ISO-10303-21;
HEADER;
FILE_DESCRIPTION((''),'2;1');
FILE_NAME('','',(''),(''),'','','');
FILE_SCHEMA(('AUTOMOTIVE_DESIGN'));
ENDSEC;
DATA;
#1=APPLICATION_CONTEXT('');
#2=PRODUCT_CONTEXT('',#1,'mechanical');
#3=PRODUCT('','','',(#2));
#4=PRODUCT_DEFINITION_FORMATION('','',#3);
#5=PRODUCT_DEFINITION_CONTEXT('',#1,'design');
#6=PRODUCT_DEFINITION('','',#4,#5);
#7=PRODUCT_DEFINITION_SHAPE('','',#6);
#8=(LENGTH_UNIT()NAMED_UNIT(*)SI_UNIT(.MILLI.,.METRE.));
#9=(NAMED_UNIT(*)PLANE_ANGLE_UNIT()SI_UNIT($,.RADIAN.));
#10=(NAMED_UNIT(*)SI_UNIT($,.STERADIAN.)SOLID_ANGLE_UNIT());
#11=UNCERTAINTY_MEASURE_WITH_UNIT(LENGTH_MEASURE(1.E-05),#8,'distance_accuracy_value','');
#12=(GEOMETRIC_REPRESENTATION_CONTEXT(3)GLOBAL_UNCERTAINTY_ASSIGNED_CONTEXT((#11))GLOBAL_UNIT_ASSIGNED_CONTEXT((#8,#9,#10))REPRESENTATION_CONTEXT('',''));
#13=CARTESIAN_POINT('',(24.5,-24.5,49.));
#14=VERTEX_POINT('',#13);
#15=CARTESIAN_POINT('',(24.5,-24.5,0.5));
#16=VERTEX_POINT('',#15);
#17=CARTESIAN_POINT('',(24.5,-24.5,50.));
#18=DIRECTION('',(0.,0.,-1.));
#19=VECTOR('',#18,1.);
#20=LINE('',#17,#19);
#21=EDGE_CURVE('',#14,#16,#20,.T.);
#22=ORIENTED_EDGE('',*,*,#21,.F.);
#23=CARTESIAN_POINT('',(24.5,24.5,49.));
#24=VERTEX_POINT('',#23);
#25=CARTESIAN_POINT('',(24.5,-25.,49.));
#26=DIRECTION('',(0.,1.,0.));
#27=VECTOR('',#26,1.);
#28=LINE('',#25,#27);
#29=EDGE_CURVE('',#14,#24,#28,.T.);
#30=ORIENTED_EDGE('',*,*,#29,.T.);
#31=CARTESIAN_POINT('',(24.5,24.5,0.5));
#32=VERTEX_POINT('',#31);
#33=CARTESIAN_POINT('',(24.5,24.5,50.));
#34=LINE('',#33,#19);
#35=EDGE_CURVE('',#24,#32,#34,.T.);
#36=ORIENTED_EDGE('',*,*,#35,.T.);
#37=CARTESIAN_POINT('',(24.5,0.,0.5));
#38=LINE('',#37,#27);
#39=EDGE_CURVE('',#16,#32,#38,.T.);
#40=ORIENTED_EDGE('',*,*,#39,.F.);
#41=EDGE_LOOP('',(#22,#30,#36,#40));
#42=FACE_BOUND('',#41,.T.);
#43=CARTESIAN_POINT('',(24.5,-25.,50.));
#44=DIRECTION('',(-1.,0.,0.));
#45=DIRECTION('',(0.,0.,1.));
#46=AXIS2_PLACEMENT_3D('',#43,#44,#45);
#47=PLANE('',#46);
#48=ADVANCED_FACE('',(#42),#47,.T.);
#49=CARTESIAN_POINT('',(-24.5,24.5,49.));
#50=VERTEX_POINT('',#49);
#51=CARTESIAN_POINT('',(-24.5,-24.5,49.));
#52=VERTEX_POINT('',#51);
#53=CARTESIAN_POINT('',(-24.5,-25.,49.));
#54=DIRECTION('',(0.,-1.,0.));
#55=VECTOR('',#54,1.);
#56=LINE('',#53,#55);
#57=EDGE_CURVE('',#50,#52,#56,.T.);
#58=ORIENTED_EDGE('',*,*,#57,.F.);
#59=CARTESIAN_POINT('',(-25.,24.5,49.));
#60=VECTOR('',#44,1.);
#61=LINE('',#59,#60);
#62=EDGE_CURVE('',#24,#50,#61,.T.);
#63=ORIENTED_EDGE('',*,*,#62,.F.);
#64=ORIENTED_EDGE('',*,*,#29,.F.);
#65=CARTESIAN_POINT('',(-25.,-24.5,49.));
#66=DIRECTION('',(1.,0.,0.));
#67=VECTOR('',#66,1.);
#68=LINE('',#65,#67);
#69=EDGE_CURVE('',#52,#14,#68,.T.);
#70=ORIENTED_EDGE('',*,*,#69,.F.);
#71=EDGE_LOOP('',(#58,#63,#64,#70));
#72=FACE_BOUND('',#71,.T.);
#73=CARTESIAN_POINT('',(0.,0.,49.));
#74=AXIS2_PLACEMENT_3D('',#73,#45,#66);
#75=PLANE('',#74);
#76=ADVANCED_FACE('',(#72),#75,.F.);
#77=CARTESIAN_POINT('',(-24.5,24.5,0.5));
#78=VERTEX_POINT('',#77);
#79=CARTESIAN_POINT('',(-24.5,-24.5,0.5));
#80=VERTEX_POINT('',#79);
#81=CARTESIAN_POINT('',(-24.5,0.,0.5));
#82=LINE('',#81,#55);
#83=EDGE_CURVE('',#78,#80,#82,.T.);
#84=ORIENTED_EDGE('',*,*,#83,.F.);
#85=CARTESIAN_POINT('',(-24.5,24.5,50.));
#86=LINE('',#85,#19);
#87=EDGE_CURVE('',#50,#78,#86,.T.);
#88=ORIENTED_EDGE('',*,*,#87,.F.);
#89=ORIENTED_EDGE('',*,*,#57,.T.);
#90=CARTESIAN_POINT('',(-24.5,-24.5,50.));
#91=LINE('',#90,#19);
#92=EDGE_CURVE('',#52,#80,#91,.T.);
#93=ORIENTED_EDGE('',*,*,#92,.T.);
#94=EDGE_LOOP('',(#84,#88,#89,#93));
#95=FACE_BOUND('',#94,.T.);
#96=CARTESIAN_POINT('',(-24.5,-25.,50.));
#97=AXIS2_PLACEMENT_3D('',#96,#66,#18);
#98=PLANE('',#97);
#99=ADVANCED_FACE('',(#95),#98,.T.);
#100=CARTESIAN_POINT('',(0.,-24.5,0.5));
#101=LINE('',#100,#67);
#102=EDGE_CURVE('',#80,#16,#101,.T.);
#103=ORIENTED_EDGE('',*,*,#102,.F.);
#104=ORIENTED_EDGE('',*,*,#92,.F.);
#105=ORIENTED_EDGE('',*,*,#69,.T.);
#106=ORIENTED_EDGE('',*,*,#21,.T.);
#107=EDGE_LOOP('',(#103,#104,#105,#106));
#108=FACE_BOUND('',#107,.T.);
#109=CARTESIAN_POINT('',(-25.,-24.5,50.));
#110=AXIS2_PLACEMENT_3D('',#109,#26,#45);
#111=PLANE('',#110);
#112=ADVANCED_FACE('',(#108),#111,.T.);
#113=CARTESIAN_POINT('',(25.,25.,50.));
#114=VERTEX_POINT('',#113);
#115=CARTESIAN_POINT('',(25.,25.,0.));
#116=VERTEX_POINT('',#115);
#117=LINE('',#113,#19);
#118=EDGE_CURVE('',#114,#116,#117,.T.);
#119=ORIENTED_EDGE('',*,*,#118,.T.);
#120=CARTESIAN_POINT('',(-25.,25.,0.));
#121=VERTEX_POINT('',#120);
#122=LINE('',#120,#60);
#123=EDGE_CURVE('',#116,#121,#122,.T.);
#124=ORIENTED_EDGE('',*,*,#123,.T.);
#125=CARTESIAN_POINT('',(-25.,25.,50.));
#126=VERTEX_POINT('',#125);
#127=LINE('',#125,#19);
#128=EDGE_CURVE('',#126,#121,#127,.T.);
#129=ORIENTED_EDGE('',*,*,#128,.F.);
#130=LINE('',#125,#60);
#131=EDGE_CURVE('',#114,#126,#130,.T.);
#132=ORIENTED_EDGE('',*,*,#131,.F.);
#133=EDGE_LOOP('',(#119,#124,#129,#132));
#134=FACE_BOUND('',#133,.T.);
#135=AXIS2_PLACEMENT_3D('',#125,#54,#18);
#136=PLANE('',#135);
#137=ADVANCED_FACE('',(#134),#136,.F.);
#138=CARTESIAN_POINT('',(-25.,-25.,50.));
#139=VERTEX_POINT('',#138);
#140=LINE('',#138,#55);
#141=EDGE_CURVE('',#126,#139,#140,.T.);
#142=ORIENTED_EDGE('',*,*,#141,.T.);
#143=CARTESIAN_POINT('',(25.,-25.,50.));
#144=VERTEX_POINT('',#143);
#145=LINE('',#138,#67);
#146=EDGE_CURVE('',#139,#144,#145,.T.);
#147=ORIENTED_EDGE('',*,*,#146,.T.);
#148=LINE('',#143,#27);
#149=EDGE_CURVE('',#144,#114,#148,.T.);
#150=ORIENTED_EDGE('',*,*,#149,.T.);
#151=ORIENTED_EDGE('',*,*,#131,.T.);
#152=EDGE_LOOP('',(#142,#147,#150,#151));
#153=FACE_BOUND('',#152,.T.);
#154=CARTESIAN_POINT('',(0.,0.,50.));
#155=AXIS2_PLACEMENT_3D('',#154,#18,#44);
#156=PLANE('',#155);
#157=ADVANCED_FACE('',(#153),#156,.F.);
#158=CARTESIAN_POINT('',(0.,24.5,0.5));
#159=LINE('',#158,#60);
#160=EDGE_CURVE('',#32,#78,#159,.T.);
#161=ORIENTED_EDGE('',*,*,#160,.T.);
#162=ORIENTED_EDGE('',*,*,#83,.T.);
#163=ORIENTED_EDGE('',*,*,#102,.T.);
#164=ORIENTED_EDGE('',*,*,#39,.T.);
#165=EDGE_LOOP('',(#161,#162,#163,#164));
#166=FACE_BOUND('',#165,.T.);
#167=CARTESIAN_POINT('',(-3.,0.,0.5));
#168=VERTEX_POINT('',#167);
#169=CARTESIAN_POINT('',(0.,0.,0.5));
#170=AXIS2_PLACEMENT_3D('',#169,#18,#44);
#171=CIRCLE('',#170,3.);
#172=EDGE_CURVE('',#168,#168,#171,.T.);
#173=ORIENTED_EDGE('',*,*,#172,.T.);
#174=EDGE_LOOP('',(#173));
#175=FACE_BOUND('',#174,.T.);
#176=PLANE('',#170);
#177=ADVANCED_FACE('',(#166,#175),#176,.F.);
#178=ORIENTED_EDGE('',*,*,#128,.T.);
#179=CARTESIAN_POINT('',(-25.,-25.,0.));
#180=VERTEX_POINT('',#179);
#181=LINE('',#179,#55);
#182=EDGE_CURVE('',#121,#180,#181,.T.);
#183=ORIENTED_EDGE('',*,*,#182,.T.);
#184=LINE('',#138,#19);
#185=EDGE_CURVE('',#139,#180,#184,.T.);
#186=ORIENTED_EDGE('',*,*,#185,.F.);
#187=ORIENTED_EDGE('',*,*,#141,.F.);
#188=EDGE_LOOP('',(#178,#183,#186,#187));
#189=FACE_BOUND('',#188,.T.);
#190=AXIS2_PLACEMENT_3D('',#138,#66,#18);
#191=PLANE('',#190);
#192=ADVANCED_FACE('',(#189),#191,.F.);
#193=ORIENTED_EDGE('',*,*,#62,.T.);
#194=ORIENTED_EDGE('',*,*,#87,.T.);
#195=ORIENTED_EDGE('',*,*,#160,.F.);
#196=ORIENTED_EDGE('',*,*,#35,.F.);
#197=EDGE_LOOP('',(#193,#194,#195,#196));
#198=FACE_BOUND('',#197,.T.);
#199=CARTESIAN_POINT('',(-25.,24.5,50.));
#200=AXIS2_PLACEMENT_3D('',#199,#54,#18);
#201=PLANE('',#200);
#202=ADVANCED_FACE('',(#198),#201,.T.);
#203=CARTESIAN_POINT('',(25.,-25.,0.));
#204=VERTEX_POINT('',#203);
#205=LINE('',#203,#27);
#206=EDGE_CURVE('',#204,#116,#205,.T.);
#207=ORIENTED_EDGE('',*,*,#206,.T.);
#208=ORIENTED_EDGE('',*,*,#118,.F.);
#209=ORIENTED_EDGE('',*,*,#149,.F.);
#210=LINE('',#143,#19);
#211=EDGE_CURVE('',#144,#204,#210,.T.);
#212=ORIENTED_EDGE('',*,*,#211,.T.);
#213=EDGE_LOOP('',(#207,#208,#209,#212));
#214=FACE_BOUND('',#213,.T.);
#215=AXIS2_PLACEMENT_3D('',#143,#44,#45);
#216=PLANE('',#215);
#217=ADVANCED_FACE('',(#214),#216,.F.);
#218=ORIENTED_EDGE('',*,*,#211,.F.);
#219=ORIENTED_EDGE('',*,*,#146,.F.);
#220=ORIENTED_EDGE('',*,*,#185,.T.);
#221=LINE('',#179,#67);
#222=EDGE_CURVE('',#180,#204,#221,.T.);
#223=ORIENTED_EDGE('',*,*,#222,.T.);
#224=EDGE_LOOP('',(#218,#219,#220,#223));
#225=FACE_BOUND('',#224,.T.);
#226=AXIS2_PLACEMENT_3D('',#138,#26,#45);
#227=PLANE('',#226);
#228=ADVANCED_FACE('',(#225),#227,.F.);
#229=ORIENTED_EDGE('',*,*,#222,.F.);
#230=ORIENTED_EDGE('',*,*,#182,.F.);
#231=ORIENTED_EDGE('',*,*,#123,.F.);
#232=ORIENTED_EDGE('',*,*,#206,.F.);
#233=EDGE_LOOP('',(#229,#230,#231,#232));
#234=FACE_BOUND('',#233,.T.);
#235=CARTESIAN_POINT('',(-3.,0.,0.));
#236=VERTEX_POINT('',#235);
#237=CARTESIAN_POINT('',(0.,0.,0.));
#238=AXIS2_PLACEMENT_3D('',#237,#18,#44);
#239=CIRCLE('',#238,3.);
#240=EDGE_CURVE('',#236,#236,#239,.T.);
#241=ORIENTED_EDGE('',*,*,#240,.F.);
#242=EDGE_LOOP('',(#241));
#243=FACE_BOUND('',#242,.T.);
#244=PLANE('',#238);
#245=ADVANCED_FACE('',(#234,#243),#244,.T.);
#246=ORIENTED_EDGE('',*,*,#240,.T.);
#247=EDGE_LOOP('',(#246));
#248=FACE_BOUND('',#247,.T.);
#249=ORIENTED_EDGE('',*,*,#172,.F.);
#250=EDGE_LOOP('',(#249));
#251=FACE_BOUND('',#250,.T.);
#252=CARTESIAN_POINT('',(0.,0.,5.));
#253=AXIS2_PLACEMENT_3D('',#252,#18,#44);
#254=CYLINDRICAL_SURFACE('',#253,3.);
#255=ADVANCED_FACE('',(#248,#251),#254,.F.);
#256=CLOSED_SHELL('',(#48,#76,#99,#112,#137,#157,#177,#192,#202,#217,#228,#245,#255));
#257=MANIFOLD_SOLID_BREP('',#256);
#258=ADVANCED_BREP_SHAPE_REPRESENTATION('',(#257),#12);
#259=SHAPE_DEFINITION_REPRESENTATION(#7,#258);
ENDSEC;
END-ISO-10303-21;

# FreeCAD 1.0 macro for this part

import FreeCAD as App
import Part
import Sketcher
Q = App.Units.Quantity


def faces_at(feature, points):
    """Names of the faces that lie closest to the given points."""
    faces = feature.Shape.Faces
    near = lambda p: min(range(len(faces)), key=lambda i: faces[i].distToShape(Part.Vertex(*p))[0])
    return sorted({f"Face{near(p) + 1}" for p in points})

doc = App.newDocument("Part")
params = doc.addObject("Spreadsheet::Sheet", "Params")
for row, (alias, value) in enumerate([
    ("sketch1_width", "50 mm"),
    ("pad1_length", "50 mm"),
    ("thickness_wall", "0.5 mm"),
    ("sketch2_diameter", "6 mm"),
    ("pocket1_length", "5 mm"),
    ("sketch3_width", "50 mm"),
    ("pad2_length", "1 mm"),
], start=1):
    params.set(f"A{row}", alias)
    params.set(f"B{row}", "=" + value)
    params.setAlias(f"B{row}", alias)

body = doc.addObject("PartDesign::Body", "Body")

sketch1 = doc.addObject("Sketcher::SketchObject", "Sketch")
body.addObject(sketch1)
sketch1.AttachmentSupport = (doc.XY_Plane, [""])
sketch1.MapMode = "FlatFace"
sketch1.addGeometry([
    Part.LineSegment(App.Vector(-25, 25, 0), App.Vector(-25, -25, 0)),
    Part.LineSegment(App.Vector(-25, -25, 0), App.Vector(25, -25, 0)),
    Part.LineSegment(App.Vector(25, -25, 0), App.Vector(25, 25, 0)),
    Part.LineSegment(App.Vector(25, 25, 0), App.Vector(-25, 25, 0)),
], False)
sketch1.addConstraint([
    Sketcher.Constraint("Coincident", 0, 2, 1, 1),
    Sketcher.Constraint("Coincident", 1, 2, 2, 1),
    Sketcher.Constraint("Coincident", 2, 2, 3, 1),
    Sketcher.Constraint("Coincident", 3, 2, 0, 1),
    Sketcher.Constraint("Vertical", 0),
    Sketcher.Constraint("Horizontal", 1),
    Sketcher.Constraint("Vertical", 2),
    Sketcher.Constraint("Horizontal", 3),
    Sketcher.Constraint("Symmetric", 0, 2, 2, 2, -1, 1),
    Sketcher.Constraint("Equal", 3, 0),
    Sketcher.Constraint("DistanceX", 1, 1, 1, 2, Q("50 mm")),
])
sketch1.setExpression("Constraints[10]", "Params.sketch1_width")
pad1 = doc.addObject("PartDesign::Pad", "Pad")
body.addObject(pad1)
pad1.Profile = sketch1
pad1.setExpression("Length", "Params.pad1_length")
doc.recompute()

thickness = doc.addObject("PartDesign::Thickness", "Thickness")
body.addObject(thickness)
thickness.Base = (pad1, faces_at(pad1, [(0, 0, 50)]))
thickness.setExpression("Value", "Params.thickness_wall")
thickness.Reversed = True
thickness.Join = "Intersection"

sketch2 = doc.addObject("Sketcher::SketchObject", "Sketch001")
body.addObject(sketch2)
sketch2.AttachmentSupport = (doc.XY_Plane, [""])
sketch2.MapMode = "FlatFace"
sketch2.addGeometry(Part.Circle(App.Vector(0, 0, 0), App.Vector(0, 0, 1), 3), False)
sketch2.addConstraint([
    Sketcher.Constraint("Coincident", 0, 3, -1, 1),
    Sketcher.Constraint("Diameter", 0, Q("6 mm")),
])
sketch2.setExpression("Constraints[1]", "Params.sketch2_diameter")
pocket1 = doc.addObject("PartDesign::Pocket", "Pocket")
body.addObject(pocket1)
pocket1.Profile = sketch2
pocket1.setExpression("Length", "Params.pocket1_length")
pocket1.Reversed = True

sketch3 = doc.addObject("Sketcher::SketchObject", "Sketch002")
body.addObject(sketch3)
sketch3.AttachmentSupport = (doc.XY_Plane, [""])
sketch3.MapMode = "FlatFace"
sketch3.AttachmentOffset = App.Placement(App.Vector(0, 0, 50), App.Rotation())
sketch3.addGeometry([
    Part.LineSegment(App.Vector(-25, 25, 0), App.Vector(-25, -25, 0)),
    Part.LineSegment(App.Vector(-25, -25, 0), App.Vector(25, -25, 0)),
    Part.LineSegment(App.Vector(25, -25, 0), App.Vector(25, 25, 0)),
    Part.LineSegment(App.Vector(25, 25, 0), App.Vector(-25, 25, 0)),
], False)
sketch3.addConstraint([
    Sketcher.Constraint("Coincident", 0, 2, 1, 1),
    Sketcher.Constraint("Coincident", 1, 2, 2, 1),
    Sketcher.Constraint("Coincident", 2, 2, 3, 1),
    Sketcher.Constraint("Coincident", 3, 2, 0, 1),
    Sketcher.Constraint("Vertical", 0),
    Sketcher.Constraint("Horizontal", 1),
    Sketcher.Constraint("Vertical", 2),
    Sketcher.Constraint("Horizontal", 3),
    Sketcher.Constraint("Symmetric", 0, 2, 2, 2, -1, 1),
    Sketcher.Constraint("Equal", 3, 0),
    Sketcher.Constraint("DistanceX", 1, 1, 1, 2, Q("50 mm")),
])
sketch3.setExpression("Constraints[10]", "Params.sketch3_width")
pad2 = doc.addObject("PartDesign::Pad", "Pad001")
body.addObject(pad2)
pad2.Profile = sketch3
pad2.setExpression("Length", "Params.pad2_length")
pad2.Reversed = True

doc.recompute()
